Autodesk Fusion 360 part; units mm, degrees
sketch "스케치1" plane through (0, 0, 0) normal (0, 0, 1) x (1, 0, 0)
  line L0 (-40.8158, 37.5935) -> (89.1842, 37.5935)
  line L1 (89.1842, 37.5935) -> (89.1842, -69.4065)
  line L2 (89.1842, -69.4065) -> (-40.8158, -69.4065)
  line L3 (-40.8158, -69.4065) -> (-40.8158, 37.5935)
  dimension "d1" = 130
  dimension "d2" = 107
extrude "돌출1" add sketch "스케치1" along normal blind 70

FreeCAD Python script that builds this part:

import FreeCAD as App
import Part
import Sketcher

V = App.Vector

doc = App.newDocument("Part")
params = doc.addObject("Spreadsheet::Sheet", "Params")
for row, (alias, value) in enumerate([
    ("sketch1_width", "130 mm"),
    ("sketch1_height", "107 mm"),
    ("pad1_length", "70 mm"),
], start=1):
    params.set(f"A{row}", alias)
    params.set(f"B{row}", "=" + value)
    params.setAlias(f"B{row}", alias)

body = doc.addObject("PartDesign::Body", "Body")

sketch1 = body.newObject("Sketcher::SketchObject", "Sketch")
sketch1.AttachmentSupport = (doc.getObject("XY_Plane"), [""])
sketch1.MapMode = "FlatFace"
sketch1.addGeometry(Part.LineSegment(V(89, 38, 0), V(-41, 38, 0)), False)
sketch1.addGeometry(Part.LineSegment(V(-41, 38, 0), V(-41, -69, 0)), False)
sketch1.addGeometry(Part.LineSegment(V(-41, -69, 0), V(89, -69, 0)), False)
sketch1.addGeometry(Part.LineSegment(V(89, -69, 0), V(89, 38, 0)), False)
sketch1.addConstraint(Sketcher.Constraint("Coincident", 0, 2, 1, 1))
sketch1.addConstraint(Sketcher.Constraint("Coincident", 1, 2, 2, 1))
sketch1.addConstraint(Sketcher.Constraint("Coincident", 2, 2, 3, 1))
sketch1.addConstraint(Sketcher.Constraint("Coincident", 3, 2, 0, 1))
sketch1.addConstraint(Sketcher.Constraint("Horizontal", 0))
sketch1.addConstraint(Sketcher.Constraint("Vertical", 1))
sketch1.addConstraint(Sketcher.Constraint("Horizontal", 2))
sketch1.addConstraint(Sketcher.Constraint("Vertical", 3))
sketch1.addConstraint(Sketcher.Constraint("DistanceX", 0, 2, 0, 1, 130.0))
sketch1.addConstraint(Sketcher.Constraint("DistanceY", 1, 2, 1, 1, 107.0))
sketch1.addConstraint(Sketcher.Constraint("DistanceX", 0, 2, -1, 1, 40.8158))
sketch1.addConstraint(Sketcher.Constraint("DistanceY", -1, 1, 0, 2, 37.5935))
sketch1.setExpression("Constraints[8]", "Params.sketch1_width")
sketch1.setExpression("Constraints[9]", "Params.sketch1_height")
pad1 = body.newObject("PartDesign::Pad", "Pad")
pad1.Profile = sketch1
pad1.setExpression("Length", "Params.pad1_length")

doc.recompute()
